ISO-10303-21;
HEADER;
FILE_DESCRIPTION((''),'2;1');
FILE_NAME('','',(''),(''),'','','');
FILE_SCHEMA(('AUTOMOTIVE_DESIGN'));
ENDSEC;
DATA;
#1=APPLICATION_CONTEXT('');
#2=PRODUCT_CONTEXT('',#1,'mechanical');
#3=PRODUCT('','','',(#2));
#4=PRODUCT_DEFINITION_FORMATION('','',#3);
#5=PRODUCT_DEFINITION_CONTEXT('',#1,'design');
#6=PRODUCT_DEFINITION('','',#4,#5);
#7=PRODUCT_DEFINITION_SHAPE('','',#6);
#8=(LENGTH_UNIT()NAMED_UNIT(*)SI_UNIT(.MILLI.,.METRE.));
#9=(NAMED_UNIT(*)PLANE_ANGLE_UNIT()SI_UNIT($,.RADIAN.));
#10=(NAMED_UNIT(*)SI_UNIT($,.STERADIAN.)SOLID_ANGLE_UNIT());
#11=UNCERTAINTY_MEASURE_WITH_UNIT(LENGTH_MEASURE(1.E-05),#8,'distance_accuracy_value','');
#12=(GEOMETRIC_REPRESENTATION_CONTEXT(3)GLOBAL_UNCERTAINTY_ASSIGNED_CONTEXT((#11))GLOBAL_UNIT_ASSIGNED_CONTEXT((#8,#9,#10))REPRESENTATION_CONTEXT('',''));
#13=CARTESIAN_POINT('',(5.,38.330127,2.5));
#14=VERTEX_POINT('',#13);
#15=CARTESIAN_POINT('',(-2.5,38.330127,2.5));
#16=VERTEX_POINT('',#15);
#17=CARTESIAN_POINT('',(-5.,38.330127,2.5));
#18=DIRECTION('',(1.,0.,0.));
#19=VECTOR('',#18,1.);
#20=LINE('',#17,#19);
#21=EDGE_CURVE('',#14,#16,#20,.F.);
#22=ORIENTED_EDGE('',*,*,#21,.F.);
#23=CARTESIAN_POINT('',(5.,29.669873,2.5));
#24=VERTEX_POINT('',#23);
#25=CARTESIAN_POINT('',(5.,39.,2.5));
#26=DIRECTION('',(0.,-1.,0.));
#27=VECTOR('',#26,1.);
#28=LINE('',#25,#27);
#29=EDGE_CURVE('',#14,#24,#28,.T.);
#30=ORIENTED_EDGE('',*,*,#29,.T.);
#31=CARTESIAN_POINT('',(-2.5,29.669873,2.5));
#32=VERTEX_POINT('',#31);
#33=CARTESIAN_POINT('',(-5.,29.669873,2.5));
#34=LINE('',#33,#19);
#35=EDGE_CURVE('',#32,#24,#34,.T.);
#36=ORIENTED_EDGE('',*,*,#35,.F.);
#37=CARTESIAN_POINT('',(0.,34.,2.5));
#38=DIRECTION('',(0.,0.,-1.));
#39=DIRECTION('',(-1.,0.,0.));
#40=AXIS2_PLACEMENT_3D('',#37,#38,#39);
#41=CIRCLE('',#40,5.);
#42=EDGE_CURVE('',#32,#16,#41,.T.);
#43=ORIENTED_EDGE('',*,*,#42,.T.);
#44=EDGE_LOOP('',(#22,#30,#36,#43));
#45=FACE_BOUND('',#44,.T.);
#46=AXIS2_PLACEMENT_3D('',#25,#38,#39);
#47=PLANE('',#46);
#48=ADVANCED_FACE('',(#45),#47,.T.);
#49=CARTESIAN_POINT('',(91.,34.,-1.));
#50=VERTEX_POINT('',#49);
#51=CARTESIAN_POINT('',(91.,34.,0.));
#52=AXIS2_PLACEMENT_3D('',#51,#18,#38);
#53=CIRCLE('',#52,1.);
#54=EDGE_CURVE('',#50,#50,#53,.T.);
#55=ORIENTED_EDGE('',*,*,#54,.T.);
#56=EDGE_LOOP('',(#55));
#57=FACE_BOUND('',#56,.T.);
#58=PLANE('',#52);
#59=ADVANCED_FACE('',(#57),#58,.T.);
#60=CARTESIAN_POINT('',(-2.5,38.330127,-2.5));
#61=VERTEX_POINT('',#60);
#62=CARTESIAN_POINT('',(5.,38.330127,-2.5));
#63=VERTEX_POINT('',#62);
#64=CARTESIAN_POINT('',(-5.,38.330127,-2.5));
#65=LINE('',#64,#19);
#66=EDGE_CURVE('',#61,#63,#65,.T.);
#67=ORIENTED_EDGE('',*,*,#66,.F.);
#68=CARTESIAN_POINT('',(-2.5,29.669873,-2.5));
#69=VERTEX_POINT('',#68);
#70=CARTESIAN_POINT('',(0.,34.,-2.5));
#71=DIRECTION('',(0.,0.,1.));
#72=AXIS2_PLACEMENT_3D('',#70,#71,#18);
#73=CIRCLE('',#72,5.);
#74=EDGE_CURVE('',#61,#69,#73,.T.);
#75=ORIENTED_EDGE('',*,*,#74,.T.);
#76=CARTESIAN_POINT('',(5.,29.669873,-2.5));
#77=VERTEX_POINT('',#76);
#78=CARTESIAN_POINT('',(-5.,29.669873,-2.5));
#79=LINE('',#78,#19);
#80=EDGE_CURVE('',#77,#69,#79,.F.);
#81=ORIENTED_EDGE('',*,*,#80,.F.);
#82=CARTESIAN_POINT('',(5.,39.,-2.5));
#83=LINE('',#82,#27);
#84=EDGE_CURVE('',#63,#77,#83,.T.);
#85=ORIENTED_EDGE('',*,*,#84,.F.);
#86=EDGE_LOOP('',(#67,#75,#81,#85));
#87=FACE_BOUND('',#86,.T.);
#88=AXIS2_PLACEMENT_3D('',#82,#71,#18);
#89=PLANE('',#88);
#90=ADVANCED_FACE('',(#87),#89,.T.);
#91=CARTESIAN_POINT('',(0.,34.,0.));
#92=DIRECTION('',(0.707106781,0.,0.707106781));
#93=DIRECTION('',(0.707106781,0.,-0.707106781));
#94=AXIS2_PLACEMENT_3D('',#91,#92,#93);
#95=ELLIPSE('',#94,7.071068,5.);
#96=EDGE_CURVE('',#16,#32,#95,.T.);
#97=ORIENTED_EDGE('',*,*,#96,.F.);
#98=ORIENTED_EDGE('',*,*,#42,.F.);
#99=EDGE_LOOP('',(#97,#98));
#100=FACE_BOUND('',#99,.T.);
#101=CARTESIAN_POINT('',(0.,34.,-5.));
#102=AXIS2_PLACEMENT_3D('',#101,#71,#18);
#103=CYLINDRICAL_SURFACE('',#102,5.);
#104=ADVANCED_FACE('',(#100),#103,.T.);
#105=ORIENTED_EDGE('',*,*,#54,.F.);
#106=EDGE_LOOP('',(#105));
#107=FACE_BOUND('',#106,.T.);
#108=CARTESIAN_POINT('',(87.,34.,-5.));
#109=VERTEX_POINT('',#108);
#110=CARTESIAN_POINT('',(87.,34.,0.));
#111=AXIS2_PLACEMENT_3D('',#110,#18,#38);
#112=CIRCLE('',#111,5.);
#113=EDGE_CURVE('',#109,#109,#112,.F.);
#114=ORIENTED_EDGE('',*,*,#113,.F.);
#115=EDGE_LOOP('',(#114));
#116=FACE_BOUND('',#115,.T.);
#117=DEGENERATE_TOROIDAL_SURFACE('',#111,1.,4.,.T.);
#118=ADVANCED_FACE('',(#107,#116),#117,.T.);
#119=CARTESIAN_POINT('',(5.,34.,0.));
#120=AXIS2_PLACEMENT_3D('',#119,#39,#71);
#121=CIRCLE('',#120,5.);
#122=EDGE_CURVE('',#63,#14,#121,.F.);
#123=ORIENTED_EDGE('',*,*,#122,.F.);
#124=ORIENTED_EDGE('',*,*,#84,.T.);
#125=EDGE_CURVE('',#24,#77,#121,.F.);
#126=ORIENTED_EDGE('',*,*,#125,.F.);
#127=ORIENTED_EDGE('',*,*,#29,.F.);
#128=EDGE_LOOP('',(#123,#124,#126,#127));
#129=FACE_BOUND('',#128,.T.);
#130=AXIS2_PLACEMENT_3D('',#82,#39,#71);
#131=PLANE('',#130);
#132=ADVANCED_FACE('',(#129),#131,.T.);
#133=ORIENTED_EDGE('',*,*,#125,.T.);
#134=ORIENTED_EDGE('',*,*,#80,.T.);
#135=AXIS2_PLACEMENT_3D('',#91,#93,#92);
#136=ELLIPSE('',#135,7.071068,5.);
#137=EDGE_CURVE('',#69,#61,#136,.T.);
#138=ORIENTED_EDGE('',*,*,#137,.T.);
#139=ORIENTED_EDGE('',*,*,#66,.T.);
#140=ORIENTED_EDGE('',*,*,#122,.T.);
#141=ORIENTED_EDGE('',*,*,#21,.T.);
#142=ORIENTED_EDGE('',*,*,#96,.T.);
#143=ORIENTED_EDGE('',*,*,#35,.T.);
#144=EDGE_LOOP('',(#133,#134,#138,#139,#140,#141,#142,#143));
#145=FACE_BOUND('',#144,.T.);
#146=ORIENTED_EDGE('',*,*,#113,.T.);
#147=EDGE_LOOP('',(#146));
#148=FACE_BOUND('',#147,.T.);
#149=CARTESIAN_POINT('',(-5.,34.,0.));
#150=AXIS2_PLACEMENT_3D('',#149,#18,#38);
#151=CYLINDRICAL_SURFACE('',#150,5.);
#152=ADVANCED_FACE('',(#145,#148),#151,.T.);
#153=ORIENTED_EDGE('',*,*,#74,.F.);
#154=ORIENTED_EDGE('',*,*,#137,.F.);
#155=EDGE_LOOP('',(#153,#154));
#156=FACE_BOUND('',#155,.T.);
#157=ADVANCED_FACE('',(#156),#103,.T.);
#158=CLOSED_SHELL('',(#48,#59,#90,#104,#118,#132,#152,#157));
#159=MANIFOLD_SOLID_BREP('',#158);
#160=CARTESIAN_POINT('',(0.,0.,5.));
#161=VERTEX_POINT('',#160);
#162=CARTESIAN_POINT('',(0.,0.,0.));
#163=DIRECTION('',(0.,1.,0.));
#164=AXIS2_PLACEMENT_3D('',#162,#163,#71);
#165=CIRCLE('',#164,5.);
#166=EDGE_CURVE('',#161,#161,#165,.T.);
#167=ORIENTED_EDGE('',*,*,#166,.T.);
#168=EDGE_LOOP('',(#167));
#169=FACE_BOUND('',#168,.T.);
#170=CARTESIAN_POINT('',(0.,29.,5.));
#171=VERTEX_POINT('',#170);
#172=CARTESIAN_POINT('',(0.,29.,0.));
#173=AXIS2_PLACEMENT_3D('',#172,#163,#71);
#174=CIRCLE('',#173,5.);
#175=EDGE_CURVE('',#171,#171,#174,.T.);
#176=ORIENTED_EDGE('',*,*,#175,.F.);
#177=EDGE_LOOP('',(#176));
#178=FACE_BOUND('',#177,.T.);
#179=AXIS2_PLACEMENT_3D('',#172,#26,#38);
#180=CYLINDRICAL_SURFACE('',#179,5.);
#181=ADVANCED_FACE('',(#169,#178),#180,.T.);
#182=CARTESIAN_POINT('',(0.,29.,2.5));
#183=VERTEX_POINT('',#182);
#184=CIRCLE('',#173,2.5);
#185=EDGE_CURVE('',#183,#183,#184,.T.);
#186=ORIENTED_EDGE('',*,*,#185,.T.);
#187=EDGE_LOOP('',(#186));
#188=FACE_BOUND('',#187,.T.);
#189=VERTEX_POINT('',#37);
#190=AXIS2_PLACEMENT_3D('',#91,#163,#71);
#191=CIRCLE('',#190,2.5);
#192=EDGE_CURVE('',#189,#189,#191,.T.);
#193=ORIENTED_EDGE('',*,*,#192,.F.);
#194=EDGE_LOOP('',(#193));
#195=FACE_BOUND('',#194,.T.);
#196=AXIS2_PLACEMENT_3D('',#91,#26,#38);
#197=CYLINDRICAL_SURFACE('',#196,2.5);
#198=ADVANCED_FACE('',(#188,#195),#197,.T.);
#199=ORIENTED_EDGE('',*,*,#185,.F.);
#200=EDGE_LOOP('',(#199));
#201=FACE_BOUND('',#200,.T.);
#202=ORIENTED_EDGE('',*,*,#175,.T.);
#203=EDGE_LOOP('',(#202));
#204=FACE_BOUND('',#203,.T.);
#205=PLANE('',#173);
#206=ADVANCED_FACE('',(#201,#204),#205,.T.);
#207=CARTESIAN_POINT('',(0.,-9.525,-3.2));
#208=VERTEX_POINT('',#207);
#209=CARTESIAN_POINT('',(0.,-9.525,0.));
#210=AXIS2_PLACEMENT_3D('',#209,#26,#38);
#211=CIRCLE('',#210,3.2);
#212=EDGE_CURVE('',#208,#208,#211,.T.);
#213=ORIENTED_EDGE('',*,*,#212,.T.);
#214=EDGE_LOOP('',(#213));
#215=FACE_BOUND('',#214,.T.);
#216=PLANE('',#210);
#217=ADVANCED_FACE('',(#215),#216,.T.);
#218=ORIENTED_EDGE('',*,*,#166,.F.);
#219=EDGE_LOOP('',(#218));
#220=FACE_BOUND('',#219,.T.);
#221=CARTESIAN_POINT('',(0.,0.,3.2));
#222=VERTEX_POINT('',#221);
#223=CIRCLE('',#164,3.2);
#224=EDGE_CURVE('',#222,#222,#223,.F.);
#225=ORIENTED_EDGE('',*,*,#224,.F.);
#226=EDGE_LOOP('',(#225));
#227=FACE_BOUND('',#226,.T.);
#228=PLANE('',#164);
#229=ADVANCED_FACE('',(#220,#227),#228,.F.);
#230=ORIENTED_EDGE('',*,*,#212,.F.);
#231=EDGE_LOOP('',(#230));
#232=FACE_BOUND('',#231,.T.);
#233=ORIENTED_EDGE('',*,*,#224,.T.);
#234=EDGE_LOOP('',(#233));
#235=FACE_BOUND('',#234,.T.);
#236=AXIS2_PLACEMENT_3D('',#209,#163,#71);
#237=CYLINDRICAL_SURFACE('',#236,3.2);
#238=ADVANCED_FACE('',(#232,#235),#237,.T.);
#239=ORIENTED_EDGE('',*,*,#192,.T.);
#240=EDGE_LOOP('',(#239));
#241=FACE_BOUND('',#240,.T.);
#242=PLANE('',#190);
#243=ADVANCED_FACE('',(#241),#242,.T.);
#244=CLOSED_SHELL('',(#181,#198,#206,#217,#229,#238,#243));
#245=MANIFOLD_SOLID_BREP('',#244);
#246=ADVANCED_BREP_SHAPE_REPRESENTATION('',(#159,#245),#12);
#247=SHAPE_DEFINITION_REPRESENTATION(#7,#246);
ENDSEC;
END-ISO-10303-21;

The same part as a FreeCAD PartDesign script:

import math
import FreeCAD as App
import Part
import Sketcher
Q = App.Units.Quantity


def edges_at(feature, points):
    """Names of the edges that pass closest to the given points."""
    edges = feature.Shape.Edges
    near = lambda p: min(range(len(edges)), key=lambda i: edges[i].distToShape(Part.Vertex(*p))[0])
    return sorted({f"Edge{near(p) + 1}" for p in points})


def add_polygon(sketch, points):
    """Adds a closed chain of lines whose ends are joined by coincident constraints."""
    first, n = sketch.GeometryCount, len(points)
    for a, b in zip(points, points[1:] + points[:1]):
        sketch.addGeometry(Part.LineSegment(App.Vector(*a, 0), App.Vector(*b, 0)), False)
    for i in range(n):
        sketch.addConstraint(Sketcher.Constraint("Coincident", first + i, 2, first + (i + 1) % n, 1))

doc = App.newDocument("Part")
params = doc.addObject("Spreadsheet::Sheet", "Params")
for row, (alias, value) in enumerate([
    ("sketch1_diameter", "10 mm"),
    ("pad1_length", "29 mm"),
    ("sketch2_diameter", "5 mm"),
    ("pad2_length", "5 mm"),
    ("sketch3_diameter", "6.4 mm"),
    ("pad3_length", "9.525 mm"),
    ("sketch4_diameter", "10 mm"),
    ("pad4_length", "86 mm"),
    ("pad4_length2", "10 mm"),
    ("fillet_radius", "4 mm"),
    ("sketch5_width", "10 mm"),
    ("sketch5_height", "5 mm"),
    ("sketch6_radius", "5 mm"),
], start=1):
    params.set(f"A{row}", alias)
    params.set(f"B{row}", "=" + value)
    params.setAlias(f"B{row}", alias)

body = doc.addObject("PartDesign::Body", "Body")

sketch1 = body.newObject("Sketcher::SketchObject", "Sketch")
sketch1.AttachmentSupport = (doc.getObject("XZ_Plane"), [""])
sketch1.MapMode = "FlatFace"
sketch1.addGeometry(Part.Circle(App.Vector(0, 0, 0), App.Vector(0, 0, 1), 5), False)
sketch1.addConstraint([
    Sketcher.Constraint("Coincident", 0, 3, -1, 1),
    Sketcher.Constraint("Diameter", 0, Q("10 mm")),
])
sketch1.setExpression("Constraints[1]", "Params.sketch1_diameter")
pad1 = body.newObject("PartDesign::Pad", "Pad")
pad1.Profile = sketch1
pad1.setExpression("Length", "Params.pad1_length")
pad1.Reversed = True

sketch2 = body.newObject("Sketcher::SketchObject", "Sketch001")
sketch2.AttachmentSupport = (doc.getObject("XZ_Plane"), [""])
sketch2.MapMode = "FlatFace"
sketch2.AttachmentOffset = App.Placement(App.Vector(0, 0, -29), App.Rotation())
sketch2.addGeometry(Part.Circle(App.Vector(0, 0, 0), App.Vector(0, 0, 1), 2.5), False)
sketch2.addConstraint([
    Sketcher.Constraint("Coincident", 0, 3, -1, 1),
    Sketcher.Constraint("Diameter", 0, Q("5 mm")),
])
sketch2.setExpression("Constraints[1]", "Params.sketch2_diameter")
pad2 = body.newObject("PartDesign::Pad", "Pad001")
pad2.Profile = sketch2
pad2.setExpression("Length", "Params.pad2_length")
pad2.Reversed = True

sketch3 = body.newObject("Sketcher::SketchObject", "Sketch002")
sketch3.AttachmentSupport = (doc.getObject("XZ_Plane"), [""])
sketch3.MapMode = "FlatFace"
sketch3.addGeometry(Part.Circle(App.Vector(0, 0, 0), App.Vector(0, 0, 1), 3.2), False)
sketch3.addConstraint([
    Sketcher.Constraint("Coincident", 0, 3, -1, 1),
    Sketcher.Constraint("Diameter", 0, Q("6.4 mm")),
])
sketch3.setExpression("Constraints[1]", "Params.sketch3_diameter")
pad3 = body.newObject("PartDesign::Pad", "Pad002")
pad3.Profile = sketch3
pad3.setExpression("Length", "Params.pad3_length")
body2 = doc.addObject("PartDesign::Body", "Body001")

sketch4 = body2.newObject("Sketcher::SketchObject", "Sketch003")
sketch4.AttachmentSupport = (doc.getObject("YZ_Plane001"), [""])
sketch4.MapMode = "FlatFace"
sketch4.AttachmentOffset = App.Placement(App.Vector(0, 0, 5), App.Rotation())
sketch4.addGeometry(Part.Circle(App.Vector(34, 0, 0), App.Vector(0, 0, 1), 5), False)
sketch4.addConstraint([
    Sketcher.Constraint("PointOnObject", 0, 3, -1),
    Sketcher.Constraint("Diameter", 0, Q("10 mm")),
    Sketcher.Constraint("DistanceX", -1, 1, 0, 3, Q("34 mm")),
])
sketch4.setExpression("Constraints[1]", "Params.sketch4_diameter")
pad4 = body2.newObject("PartDesign::Pad", "Pad003")
pad4.Profile = sketch4
pad4.Type = "TwoLengths"
pad4.setExpression("Length", "Params.pad4_length")
pad4.setExpression("Length2", "Params.pad4_length2")
doc.recompute()

fillet = body2.newObject("PartDesign::Fillet", "Fillet")
fillet.Base = (pad4, edges_at(pad4, [(91, 34, 5)]))
fillet.setExpression("Radius", "Params.fillet_radius")

sketch5 = body2.newObject("Sketcher::SketchObject", "Sketch004")
sketch5.AttachmentSupport = (doc.getObject("XZ_Plane001"), [""])
sketch5.MapMode = "FlatFace"
sketch5.AttachmentOffset = App.Placement(App.Vector(0, 0, -29), App.Rotation())
add_polygon(sketch5, [(-5, -2), (-5, 2), (5, 2), (5, -2)])
sketch5.addConstraint([
    Sketcher.Constraint("Vertical", 0),
    Sketcher.Constraint("Horizontal", 1),
    Sketcher.Constraint("Vertical", 2),
    Sketcher.Constraint("Horizontal", 3),
    Sketcher.Constraint("Symmetric", 0, 2, 2, 2, -1, 1),
    Sketcher.Constraint("DistanceX", 1, 1, 1, 2, Q("10 mm")),
    Sketcher.Constraint("DistanceY", 0, 1, 0, 2, Q("5 mm")),
])
sketch5.setExpression("Constraints[9]", "Params.sketch5_width")
sketch5.setExpression("Constraints[10]", "Params.sketch5_height")
pocket1 = body2.newObject("PartDesign::Pocket", "Pocket")
pocket1.Profile = sketch5
pocket1.Type = "ThroughAll"

sketch6 = body2.newObject("Sketcher::SketchObject", "Sketch005")
sketch6.AttachmentSupport = (doc.getObject("XY_Plane001"), [""])
sketch6.MapMode = "FlatFace"
sketch6.addGeometry([
    Part.LineSegment(App.Vector(-5, 34, 0), App.Vector(-5, 29, 0)),
    Part.LineSegment(App.Vector(-5, 29, 0), App.Vector(0, 29, 0)),
    Part.ArcOfCircle(Part.Circle(App.Vector(0, 34, 0), App.Vector(0, 0, 1), 5), math.radians(180), math.radians(270)),
    Part.LineSegment(App.Vector(-5, 39, 0), App.Vector(-5, 34, 0)),
    Part.ArcOfCircle(Part.Circle(App.Vector(0, 34, 0), App.Vector(0, 0, 1), 5), math.radians(90), math.radians(180)),
    Part.LineSegment(App.Vector(0, 39, 0), App.Vector(-5, 39, 0)),
], False)
sketch6.addConstraint([
    Sketcher.Constraint("Coincident", 0, 2, 1, 1),
    Sketcher.Constraint("Tangent", 1, 2, 2, 2),
    Sketcher.Constraint("Tangent", 2, 1, 0, 1),
    Sketcher.Constraint("Tangent", 3, 2, 4, 2),
    Sketcher.Constraint("Tangent", 4, 1, 5, 1),
    Sketcher.Constraint("Coincident", 5, 2, 3, 1),
    Sketcher.Constraint("Vertical", 0),
    Sketcher.Constraint("Horizontal", 1),
    Sketcher.Constraint("Vertical", 3),
    Sketcher.Constraint("Horizontal", 5),
    Sketcher.Constraint("Coincident", 4, 3, 2, 3),
    Sketcher.Constraint("Equal", 2, 4),
    Sketcher.Constraint("PointOnObject", 2, 3, -2),
    Sketcher.Constraint("Radius", 2, Q("5 mm")),
    Sketcher.Constraint("DistanceY", -1, 1, 2, 3, Q("34 mm")),
])
sketch6.setExpression("Constraints[13]", "Params.sketch6_radius")
pocket2 = body2.newObject("PartDesign::Pocket", "Pocket001")
pocket2.Profile = sketch6
pocket2.Type = "ThroughAll"
pocket2.Midplane = True

doc.recompute()
